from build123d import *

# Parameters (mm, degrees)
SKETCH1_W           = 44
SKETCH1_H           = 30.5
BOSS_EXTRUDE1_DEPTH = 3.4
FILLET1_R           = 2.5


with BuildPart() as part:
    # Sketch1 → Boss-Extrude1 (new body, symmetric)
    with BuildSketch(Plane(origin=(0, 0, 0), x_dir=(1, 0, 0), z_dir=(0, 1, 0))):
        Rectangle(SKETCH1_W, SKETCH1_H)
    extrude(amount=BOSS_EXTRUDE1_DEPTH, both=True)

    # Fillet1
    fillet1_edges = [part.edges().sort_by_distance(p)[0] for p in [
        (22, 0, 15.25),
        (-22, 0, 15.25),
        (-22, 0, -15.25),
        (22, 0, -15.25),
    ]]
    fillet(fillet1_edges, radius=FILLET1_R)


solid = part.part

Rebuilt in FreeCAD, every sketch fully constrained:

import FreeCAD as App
import Part
import Sketcher
Q = App.Units.Quantity


def edges_at(feature, points):
    """Names of the edges that pass closest to the given points."""
    edges = feature.Shape.Edges
    near = lambda p: min(range(len(edges)), key=lambda i: edges[i].distToShape(Part.Vertex(*p))[0])
    return sorted({f"Edge{near(p) + 1}" for p in points})


def add_polygon(sketch, points):
    """Adds a closed chain of lines whose ends are joined by coincident constraints."""
    first, n = sketch.GeometryCount, len(points)
    for a, b in zip(points, points[1:] + points[:1]):
        sketch.addGeometry(Part.LineSegment(App.Vector(*a, 0), App.Vector(*b, 0)), False)
    for i in range(n):
        sketch.addConstraint(Sketcher.Constraint("Coincident", first + i, 2, first + (i + 1) % n, 1))

doc = App.newDocument("Part")
body = doc.addObject("PartDesign::Body", "Body")

# Sketch on XZ plane
sketch1 = body.newObject("Sketcher::SketchObject", "Sketch")
sketch1.AttachmentSupport = (doc.getObject("XZ_Plane"), [""])
sketch1.MapMode = "FlatFace"
add_polygon(sketch1, [(-22, -15), (-22, 15), (22, 15), (22, -15)])  # lines 0-3
sketch1.addConstraint(Sketcher.Constraint("Vertical", 0))
sketch1.addConstraint(Sketcher.Constraint("Horizontal", 1))
sketch1.addConstraint(Sketcher.Constraint("Vertical", 2))
sketch1.addConstraint(Sketcher.Constraint("Horizontal", 3))
sketch1.addConstraint(Sketcher.Constraint("Symmetric", 0, 2, 2, 2, -1, 1))
sketch1.addConstraint(Sketcher.Constraint("DistanceX", 1, 1, 1, 2, Q("44 mm")))
sketch1.addConstraint(Sketcher.Constraint("DistanceY", 0, 1, 0, 2, Q("30.5 mm")))
pad1 = body.newObject("PartDesign::Pad", "Pad")
pad1.Profile = sketch1
pad1.Length = 6.8
pad1.Midplane = True
doc.recompute()

fillet = body.newObject("PartDesign::Fillet", "Fillet")
fillet.Base = (pad1, edges_at(pad1, [
    (22, 0, 15.25),
    (-22, 0, 15.25),
    (-22, 0, -15.25),
    (22, 0, -15.25),
]))
fillet.Radius = 2.5

doc.recompute()
